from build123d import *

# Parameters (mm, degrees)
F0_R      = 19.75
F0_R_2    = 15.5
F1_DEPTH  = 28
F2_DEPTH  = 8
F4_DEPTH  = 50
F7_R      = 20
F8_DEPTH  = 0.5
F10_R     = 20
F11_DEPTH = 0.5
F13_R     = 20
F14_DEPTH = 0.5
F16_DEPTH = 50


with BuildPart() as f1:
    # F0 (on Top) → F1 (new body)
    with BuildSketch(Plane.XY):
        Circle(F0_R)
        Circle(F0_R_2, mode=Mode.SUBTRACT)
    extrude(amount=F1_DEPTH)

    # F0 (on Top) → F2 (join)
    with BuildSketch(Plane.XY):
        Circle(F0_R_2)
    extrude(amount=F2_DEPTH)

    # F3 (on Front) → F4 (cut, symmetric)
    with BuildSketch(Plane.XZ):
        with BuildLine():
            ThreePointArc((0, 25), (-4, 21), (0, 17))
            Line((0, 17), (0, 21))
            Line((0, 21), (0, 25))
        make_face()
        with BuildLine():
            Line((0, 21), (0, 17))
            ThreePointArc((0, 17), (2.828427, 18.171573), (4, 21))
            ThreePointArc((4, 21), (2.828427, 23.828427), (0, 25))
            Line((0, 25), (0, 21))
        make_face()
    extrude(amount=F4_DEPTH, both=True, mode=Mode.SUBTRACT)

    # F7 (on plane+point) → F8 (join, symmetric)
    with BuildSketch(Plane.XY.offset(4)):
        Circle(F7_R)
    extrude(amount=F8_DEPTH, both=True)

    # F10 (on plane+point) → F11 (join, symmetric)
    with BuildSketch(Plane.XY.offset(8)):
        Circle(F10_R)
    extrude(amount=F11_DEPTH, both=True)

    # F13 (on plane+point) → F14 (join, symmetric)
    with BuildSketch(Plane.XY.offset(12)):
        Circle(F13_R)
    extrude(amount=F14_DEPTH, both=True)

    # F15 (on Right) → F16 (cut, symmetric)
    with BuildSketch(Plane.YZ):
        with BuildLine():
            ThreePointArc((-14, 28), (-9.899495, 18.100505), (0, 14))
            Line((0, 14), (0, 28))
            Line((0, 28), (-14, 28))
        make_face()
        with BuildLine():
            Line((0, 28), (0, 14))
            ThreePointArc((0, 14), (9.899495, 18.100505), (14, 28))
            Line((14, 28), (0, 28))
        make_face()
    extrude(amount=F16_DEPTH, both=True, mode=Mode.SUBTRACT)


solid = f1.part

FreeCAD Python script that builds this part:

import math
import FreeCAD as App
import Part
import Sketcher
from FreeCAD import Vector

doc = App.newDocument("Part")
body = doc.addObject("PartDesign::Body", "Body")

# Sketch on XY plane
sketch1 = body.newObject("Sketcher::SketchObject", "Sketch")
sketch1.AttachmentSupport = (doc.getObject("XY_Plane"), [""])
sketch1.MapMode = "FlatFace"
sketch1.addGeometry([
    Part.Circle(Vector(0, 0, 0), Vector(0, 0, 1), 20),
    Part.Circle(Vector(0, 0, 0), Vector(0, 0, 1), 16),
], False)
sketch1.addConstraint([
    Sketcher.Constraint("Coincident", 0, 3, -1, 1),
    Sketcher.Constraint("Coincident", 1, 3, -1, 1),
    Sketcher.Constraint("Diameter", 1, 31.0),
    Sketcher.Constraint("Diameter", 0, 39.5),
])
pad1 = body.newObject("PartDesign::Pad", "Pad")
pad1.Profile = sketch1
pad1.Length = 28

# Sketch on XY plane
sketch2 = body.newObject("Sketcher::SketchObject", "Sketch001")
sketch2.AttachmentSupport = (doc.getObject("XY_Plane"), [""])
sketch2.MapMode = "FlatFace"
sketch2.addGeometry(Part.Circle(Vector(0, 0, 0), Vector(0, 0, 1), 16), False)
sketch2.addConstraint([
    Sketcher.Constraint("Coincident", 0, 3, -1, 1),
    Sketcher.Constraint("Diameter", 0, 31.0),
])
pad2 = body.newObject("PartDesign::Pad", "Pad001")
pad2.Profile = sketch2
pad2.Length = 8

# Sketch on XZ plane
sketch3 = body.newObject("Sketcher::SketchObject", "Sketch002")
sketch3.AttachmentSupport = (doc.getObject("XZ_Plane"), [""])
sketch3.MapMode = "FlatFace"
sketch3.addGeometry([
    Part.ArcOfCircle(Part.Circle(Vector(0, 21, 0), Vector(0, 0, 1), 4), math.radians(90), math.radians(270)),
    Part.ArcOfCircle(Part.Circle(Vector(0, 21, 0), Vector(0, 0, 1), 4), math.radians(-90), math.radians(0)),
    Part.ArcOfCircle(Part.Circle(Vector(0, 21, 0), Vector(0, 0, 1), 4), math.radians(0), math.radians(90)),
], False)
sketch3.addConstraint([
    Sketcher.Constraint("Tangent", 0, 2, 1, 1),
    Sketcher.Constraint("Tangent", 1, 2, 2, 1),
    Sketcher.Constraint("Tangent", 2, 2, 0, 1),
    Sketcher.Constraint("PointOnObject", 0, 3, -2),
    Sketcher.Constraint("PointOnObject", 0, 2, -2),
    Sketcher.Constraint("PointOnObject", 2, 2, -2),
    Sketcher.Constraint("Horizontal", 2, 3, 1, 2),
    Sketcher.Constraint("Radius", 0, 4.0),
    Sketcher.Constraint("DistanceY", -1, 1, 0, 3, 21.0),
])
pocket1 = body.newObject("PartDesign::Pocket", "Pocket")
pocket1.Profile = sketch3
pocket1.Length = 100
pocket1.Midplane = True

# Sketch on XY plane
sketch4 = body.newObject("Sketcher::SketchObject", "Sketch003")
sketch4.AttachmentSupport = (doc.getObject("XY_Plane"), [""])
sketch4.MapMode = "FlatFace"
sketch4.AttachmentOffset = App.Placement(Vector(0, 0, 4), App.Rotation())
sketch4.addGeometry(Part.Circle(Vector(0, 0, 0), Vector(0, 0, 1), 20), False)
sketch4.addConstraint([
    Sketcher.Constraint("Coincident", 0, 3, -1, 1),
    Sketcher.Constraint("Diameter", 0, 40.0),
])
pad3 = body.newObject("PartDesign::Pad", "Pad002")
pad3.Profile = sketch4
pad3.Length = 1
pad3.Midplane = True

# Sketch on XY plane
sketch5 = body.newObject("Sketcher::SketchObject", "Sketch004")
sketch5.AttachmentSupport = (doc.getObject("XY_Plane"), [""])
sketch5.MapMode = "FlatFace"
sketch5.AttachmentOffset = App.Placement(Vector(0, 0, 8), App.Rotation())
sketch5.addGeometry(Part.Circle(Vector(0, 0, 0), Vector(0, 0, 1), 20), False)
sketch5.addConstraint([
    Sketcher.Constraint("Coincident", 0, 3, -1, 1),
    Sketcher.Constraint("Diameter", 0, 40.0),
])
pad4 = body.newObject("PartDesign::Pad", "Pad003")
pad4.Profile = sketch5
pad4.Length = 1
pad4.Midplane = True

# Sketch on XY plane
sketch6 = body.newObject("Sketcher::SketchObject", "Sketch005")
sketch6.AttachmentSupport = (doc.getObject("XY_Plane"), [""])
sketch6.MapMode = "FlatFace"
sketch6.AttachmentOffset = App.Placement(Vector(0, 0, 12), App.Rotation())
sketch6.addGeometry(Part.Circle(Vector(0, 0, 0), Vector(0, 0, 1), 20), False)
sketch6.addConstraint([
    Sketcher.Constraint("Coincident", 0, 3, -1, 1),
    Sketcher.Constraint("Diameter", 0, 40.0),
])
pad5 = body.newObject("PartDesign::Pad", "Pad004")
pad5.Profile = sketch6
pad5.Length = 1
pad5.Midplane = True

# Sketch on YZ plane
sketch7 = body.newObject("Sketcher::SketchObject", "Sketch006")
sketch7.AttachmentSupport = (doc.getObject("YZ_Plane"), [""])
sketch7.MapMode = "FlatFace"
sketch7.addGeometry([
    Part.ArcOfCircle(Part.Circle(Vector(0, 28, 0), Vector(0, 0, 1), 14), math.radians(180), math.radians(270)),
    Part.ArcOfCircle(Part.Circle(Vector(0, 28, 0), Vector(0, 0, 1), 14), math.radians(-90), math.radians(0)),
    Part.LineSegment(Vector(14, 28, 0), Vector(-14, 28, 0)),
], False)
sketch7.addConstraint([
    Sketcher.Constraint("Tangent", 0, 2, 1, 1),
    Sketcher.Constraint("Coincident", 1, 2, 2, 1),
    Sketcher.Constraint("Coincident", 2, 2, 0, 1),
    Sketcher.Constraint("Horizontal", 2),
    Sketcher.Constraint("Equal", 0, 1),
    Sketcher.Constraint("PointOnObject", 0, 3, -2),
    Sketcher.Constraint("PointOnObject", 0, 2, -2),
    Sketcher.Constraint("Horizontal", 0, 3, 1, 2),
    Sketcher.Constraint("Radius", 0, 14.0),
    Sketcher.Constraint("DistanceY", -1, 1, 0, 3, 28.0),
])
pocket2 = body.newObject("PartDesign::Pocket", "Pocket001")
pocket2.Profile = sketch7
pocket2.Length = 100
pocket2.Midplane = True

doc.recompute()
